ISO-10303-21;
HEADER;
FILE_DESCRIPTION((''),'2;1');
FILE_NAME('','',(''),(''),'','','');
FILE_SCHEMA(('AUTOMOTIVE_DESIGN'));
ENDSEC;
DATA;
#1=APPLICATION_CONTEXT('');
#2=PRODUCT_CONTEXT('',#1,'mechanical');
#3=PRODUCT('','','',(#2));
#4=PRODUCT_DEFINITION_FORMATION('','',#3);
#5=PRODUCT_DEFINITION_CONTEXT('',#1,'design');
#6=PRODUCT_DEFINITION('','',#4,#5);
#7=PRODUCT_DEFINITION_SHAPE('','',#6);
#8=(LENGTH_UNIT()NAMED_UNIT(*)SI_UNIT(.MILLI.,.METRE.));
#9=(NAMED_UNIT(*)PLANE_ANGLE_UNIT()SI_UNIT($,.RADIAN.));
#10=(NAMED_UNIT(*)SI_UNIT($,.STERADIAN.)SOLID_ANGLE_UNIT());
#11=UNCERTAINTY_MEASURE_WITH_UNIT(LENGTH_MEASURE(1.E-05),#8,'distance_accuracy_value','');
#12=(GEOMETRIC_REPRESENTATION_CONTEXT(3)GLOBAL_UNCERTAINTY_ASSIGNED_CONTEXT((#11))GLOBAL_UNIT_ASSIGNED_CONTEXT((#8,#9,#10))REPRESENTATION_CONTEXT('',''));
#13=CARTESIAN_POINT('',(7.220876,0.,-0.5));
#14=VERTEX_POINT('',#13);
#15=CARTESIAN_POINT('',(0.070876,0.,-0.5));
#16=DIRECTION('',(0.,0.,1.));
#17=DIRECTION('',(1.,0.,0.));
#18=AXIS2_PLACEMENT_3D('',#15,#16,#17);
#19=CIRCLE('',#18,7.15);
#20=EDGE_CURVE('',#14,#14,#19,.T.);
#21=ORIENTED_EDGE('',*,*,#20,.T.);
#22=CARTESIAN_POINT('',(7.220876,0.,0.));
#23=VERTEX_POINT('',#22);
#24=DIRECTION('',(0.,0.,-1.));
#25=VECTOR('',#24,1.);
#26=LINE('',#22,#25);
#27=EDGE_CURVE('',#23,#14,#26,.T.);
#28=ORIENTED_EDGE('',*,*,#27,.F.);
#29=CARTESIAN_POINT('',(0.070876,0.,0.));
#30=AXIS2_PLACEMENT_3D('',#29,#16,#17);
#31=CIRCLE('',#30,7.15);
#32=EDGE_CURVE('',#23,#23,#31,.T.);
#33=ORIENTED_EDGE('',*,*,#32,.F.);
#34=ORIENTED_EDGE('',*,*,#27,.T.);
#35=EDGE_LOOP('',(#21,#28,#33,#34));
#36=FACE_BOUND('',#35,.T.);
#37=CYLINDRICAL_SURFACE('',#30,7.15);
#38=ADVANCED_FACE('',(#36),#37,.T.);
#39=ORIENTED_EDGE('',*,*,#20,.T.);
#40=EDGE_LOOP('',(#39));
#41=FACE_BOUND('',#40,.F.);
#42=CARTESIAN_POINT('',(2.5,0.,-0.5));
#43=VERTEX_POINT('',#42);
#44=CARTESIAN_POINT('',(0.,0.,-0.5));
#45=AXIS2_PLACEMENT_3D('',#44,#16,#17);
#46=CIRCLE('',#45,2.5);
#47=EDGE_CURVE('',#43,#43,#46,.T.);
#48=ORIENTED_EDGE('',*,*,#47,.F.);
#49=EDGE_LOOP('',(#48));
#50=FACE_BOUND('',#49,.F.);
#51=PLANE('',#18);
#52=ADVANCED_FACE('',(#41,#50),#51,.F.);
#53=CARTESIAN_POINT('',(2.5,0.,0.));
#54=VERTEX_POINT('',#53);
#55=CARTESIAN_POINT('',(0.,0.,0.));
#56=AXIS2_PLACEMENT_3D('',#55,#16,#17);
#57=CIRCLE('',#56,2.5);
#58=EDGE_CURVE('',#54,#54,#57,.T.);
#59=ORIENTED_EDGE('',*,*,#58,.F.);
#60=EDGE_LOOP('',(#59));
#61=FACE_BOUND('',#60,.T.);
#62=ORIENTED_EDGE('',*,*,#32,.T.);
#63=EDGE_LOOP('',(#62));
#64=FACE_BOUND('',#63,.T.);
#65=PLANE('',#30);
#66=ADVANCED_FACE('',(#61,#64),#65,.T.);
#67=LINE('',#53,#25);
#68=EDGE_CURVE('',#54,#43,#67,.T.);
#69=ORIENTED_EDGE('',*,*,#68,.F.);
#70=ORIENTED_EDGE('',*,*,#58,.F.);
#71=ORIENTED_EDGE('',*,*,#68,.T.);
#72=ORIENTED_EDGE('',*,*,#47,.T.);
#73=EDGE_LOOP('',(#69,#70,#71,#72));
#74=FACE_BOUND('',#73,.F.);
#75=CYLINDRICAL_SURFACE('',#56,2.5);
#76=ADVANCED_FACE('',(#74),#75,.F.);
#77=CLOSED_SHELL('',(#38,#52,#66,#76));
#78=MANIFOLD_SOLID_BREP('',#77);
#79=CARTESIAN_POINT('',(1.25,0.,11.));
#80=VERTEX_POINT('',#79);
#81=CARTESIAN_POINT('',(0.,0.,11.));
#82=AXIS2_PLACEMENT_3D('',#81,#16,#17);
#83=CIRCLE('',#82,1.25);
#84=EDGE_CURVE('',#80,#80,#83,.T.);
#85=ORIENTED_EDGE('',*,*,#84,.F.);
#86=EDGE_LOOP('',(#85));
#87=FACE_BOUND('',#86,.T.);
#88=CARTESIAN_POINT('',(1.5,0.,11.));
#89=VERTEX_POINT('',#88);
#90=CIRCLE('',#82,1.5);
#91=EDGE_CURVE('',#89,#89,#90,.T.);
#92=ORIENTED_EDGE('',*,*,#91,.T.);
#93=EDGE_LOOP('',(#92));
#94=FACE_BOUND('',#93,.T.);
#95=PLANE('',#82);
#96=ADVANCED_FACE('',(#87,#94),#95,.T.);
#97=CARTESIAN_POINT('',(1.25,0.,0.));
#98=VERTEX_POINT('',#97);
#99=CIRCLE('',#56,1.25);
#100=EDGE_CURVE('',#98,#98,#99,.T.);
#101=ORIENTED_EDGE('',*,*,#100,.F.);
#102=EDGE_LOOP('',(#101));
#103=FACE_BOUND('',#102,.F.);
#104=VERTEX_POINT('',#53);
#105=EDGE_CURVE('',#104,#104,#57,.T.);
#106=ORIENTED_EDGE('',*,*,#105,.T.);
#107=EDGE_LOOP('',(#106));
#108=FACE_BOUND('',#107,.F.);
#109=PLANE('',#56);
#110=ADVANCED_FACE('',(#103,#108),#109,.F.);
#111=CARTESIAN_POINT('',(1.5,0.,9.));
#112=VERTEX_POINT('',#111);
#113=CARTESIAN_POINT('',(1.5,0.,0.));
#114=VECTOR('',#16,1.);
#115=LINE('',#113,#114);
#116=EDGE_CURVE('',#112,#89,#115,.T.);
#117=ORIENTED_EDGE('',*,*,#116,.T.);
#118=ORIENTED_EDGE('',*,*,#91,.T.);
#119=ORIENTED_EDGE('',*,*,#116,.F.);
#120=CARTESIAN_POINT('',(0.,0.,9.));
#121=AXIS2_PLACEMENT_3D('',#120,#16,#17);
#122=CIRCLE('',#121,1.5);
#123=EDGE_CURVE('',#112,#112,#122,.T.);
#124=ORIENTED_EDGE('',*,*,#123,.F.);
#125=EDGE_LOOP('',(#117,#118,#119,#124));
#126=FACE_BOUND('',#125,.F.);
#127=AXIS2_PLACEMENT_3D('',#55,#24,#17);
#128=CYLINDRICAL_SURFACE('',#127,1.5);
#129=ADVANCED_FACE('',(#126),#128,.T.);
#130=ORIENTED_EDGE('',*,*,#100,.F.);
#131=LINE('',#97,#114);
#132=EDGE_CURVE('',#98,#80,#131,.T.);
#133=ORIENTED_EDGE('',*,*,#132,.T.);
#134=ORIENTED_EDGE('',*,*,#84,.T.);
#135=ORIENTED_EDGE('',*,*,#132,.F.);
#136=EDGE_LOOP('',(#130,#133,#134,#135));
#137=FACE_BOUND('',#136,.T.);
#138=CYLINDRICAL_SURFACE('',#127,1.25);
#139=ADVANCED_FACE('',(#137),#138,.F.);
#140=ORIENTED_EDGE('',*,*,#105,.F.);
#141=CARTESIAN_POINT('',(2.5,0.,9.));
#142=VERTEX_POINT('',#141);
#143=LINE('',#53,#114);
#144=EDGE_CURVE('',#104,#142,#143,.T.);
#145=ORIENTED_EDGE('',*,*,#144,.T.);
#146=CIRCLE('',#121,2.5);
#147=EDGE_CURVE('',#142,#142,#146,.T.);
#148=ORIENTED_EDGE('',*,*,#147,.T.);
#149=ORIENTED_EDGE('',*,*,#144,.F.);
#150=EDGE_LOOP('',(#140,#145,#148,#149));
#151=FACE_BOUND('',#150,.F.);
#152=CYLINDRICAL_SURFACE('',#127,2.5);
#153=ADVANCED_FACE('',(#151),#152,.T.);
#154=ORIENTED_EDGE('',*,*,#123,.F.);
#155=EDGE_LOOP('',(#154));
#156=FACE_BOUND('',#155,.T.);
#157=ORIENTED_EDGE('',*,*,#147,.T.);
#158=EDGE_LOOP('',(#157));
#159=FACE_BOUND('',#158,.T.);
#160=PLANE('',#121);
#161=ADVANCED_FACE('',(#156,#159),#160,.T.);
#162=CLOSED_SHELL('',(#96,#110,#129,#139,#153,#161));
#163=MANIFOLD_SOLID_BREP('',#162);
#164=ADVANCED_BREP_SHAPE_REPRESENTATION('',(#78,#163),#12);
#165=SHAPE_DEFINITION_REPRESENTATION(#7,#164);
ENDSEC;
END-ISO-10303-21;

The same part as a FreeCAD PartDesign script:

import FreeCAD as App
import Part
import Sketcher
Q = App.Units.Quantity

doc = App.newDocument("Part")
body = doc.addObject("PartDesign::Body", "Body")

sketch1 = doc.addObject("Sketcher::SketchObject", "Sketch")
body.addObject(sketch1)
sketch1.AttachmentSupport = (doc.XY_Plane, [""])
sketch1.MapMode = "FlatFace"
sketch1.addGeometry(Part.Circle(App.Vector(0, 0, 0), App.Vector(0, 0, 1), 2.5), False)
sketch1.addGeometry(Part.Circle(App.Vector(0, 0, 0), App.Vector(0, 0, 1), 1.5), False)
sketch1.addConstraint(Sketcher.Constraint("Coincident", 0, 3, -1, 1))
sketch1.addConstraint(Sketcher.Constraint("Coincident", 1, 3, -1, 1))
sketch1.addConstraint(Sketcher.Constraint("Diameter", 0, Q("5 mm")))
sketch1.addConstraint(Sketcher.Constraint("Diameter", 1, Q("3 mm")))
pad1 = doc.addObject("PartDesign::Pad", "Pad")
body.addObject(pad1)
pad1.Profile = sketch1
pad1.Length = 9

sketch2 = doc.addObject("Sketcher::SketchObject", "Sketch001")
body.addObject(sketch2)
sketch2.AttachmentSupport = (doc.XY_Plane, [""])
sketch2.MapMode = "FlatFace"
sketch2.addGeometry(Part.Circle(App.Vector(0, 0, 0), App.Vector(0, 0, 1), 1.5), False)
sketch2.addGeometry(Part.Circle(App.Vector(0, 0, 0), App.Vector(0, 0, 1), 1.2), False)
sketch2.addConstraint(Sketcher.Constraint("Coincident", 0, 3, -1, 1))
sketch2.addConstraint(Sketcher.Constraint("Coincident", 1, 3, -1, 1))
sketch2.addConstraint(Sketcher.Constraint("Diameter", 0, Q("3 mm")))
sketch2.addConstraint(Sketcher.Constraint("Diameter", 1, Q("2.5 mm")))
pad2 = doc.addObject("PartDesign::Pad", "Pad001")
body.addObject(pad2)
pad2.Profile = sketch2
pad2.Length = 11
body2 = doc.addObject("PartDesign::Body", "Body001")

sketch3 = doc.addObject("Sketcher::SketchObject", "Sketch002")
body2.addObject(sketch3)
sketch3.AttachmentSupport = (doc.getObject("XY_Plane001"), [""])
sketch3.MapMode = "FlatFace"
sketch3.addGeometry(Part.Circle(App.Vector(0.1, 0, 0), App.Vector(0, 0, 1), 7.2), False)
sketch3.addGeometry(Part.Circle(App.Vector(0, 0, 0), App.Vector(0, 0, 1), 2.5), False)
sketch3.addConstraint(Sketcher.Constraint("Coincident", 1, 3, -1, 1))
sketch3.addConstraint(Sketcher.Constraint("PointOnObject", 0, 3, -1))
sketch3.addConstraint(Sketcher.Constraint("Diameter", 1, Q("5 mm")))
sketch3.addConstraint(Sketcher.Constraint("Diameter", 0, Q("14.3 mm")))
sketch3.addConstraint(Sketcher.Constraint("DistanceX", -1, 1, 0, 3, Q("0.070876 mm")))
pad3 = doc.addObject("PartDesign::Pad", "Pad002")
body2.addObject(pad3)
pad3.Profile = sketch3
pad3.Length = 0.5
pad3.Reversed = True

doc.recompute()
